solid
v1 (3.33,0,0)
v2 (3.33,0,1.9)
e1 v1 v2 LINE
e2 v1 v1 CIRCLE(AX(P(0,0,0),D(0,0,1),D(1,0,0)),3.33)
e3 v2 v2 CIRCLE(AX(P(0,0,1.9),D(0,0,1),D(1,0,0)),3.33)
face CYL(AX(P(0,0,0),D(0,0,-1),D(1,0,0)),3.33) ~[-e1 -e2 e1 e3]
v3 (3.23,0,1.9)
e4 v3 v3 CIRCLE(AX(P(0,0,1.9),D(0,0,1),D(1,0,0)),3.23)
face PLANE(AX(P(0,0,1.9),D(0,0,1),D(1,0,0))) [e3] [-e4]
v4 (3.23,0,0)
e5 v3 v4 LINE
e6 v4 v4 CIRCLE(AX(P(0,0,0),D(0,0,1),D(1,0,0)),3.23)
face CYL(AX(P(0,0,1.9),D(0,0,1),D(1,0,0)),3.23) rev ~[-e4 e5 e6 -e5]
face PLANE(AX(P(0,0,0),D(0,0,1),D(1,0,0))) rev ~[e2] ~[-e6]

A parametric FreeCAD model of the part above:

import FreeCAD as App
import Part
import Sketcher

V = App.Vector
Q = App.Units.Quantity

doc = App.newDocument("Part")
body = doc.addObject("PartDesign::Body", "Body")

# Sketch on XY plane
sketch1 = body.newObject("Sketcher::SketchObject", "Sketch")
sketch1.AttachmentSupport = (doc.getObject("XY_Plane"), [""])
sketch1.MapMode = "FlatFace"
sketch1.addGeometry(Part.Circle(V(0, 0, 0), V(0, 0, 1), 3.3), False)
sketch1.addConstraint(Sketcher.Constraint("Coincident", 0, 3, -1, 1))
sketch1.addConstraint(Sketcher.Constraint("Diameter", 0, Q("6.66 mm")))
pad1 = body.newObject("PartDesign::Pad", "Pad")
pad1.Profile = sketch1
pad1.Length = 1.9

# Sketch on XY plane
sketch2 = body.newObject("Sketcher::SketchObject", "Sketch001")
sketch2.AttachmentSupport = (doc.getObject("XY_Plane"), [""])
sketch2.MapMode = "FlatFace"
sketch2.AttachmentOffset = App.Placement(V(0, 0, 1.9), App.Rotation())
sketch2.addGeometry(Part.Circle(V(0, 0, 0), V(0, 0, 1), 3.2), False)
sketch2.addConstraint(Sketcher.Constraint("Coincident", 0, 3, -1, 1))
sketch2.addConstraint(Sketcher.Constraint("Diameter", 0, Q("6.46 mm")))
pocket1 = body.newObject("PartDesign::Pocket", "Pocket")
pocket1.Profile = sketch2
pocket1.Type = "ThroughAll"

doc.recompute()
